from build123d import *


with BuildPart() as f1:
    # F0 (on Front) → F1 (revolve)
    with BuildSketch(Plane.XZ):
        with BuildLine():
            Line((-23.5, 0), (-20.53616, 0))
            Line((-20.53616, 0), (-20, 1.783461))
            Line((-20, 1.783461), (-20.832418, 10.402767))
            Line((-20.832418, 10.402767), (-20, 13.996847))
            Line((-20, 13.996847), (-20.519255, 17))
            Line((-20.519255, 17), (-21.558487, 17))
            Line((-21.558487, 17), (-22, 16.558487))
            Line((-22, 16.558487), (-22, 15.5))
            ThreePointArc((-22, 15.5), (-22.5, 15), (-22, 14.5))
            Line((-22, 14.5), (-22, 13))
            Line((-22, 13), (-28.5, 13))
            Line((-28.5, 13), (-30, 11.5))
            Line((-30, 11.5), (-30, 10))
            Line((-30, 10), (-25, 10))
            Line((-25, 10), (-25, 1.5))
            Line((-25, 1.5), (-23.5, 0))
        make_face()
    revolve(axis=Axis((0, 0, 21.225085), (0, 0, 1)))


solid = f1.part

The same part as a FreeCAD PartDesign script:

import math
import FreeCAD as App
import Part
import Sketcher
from FreeCAD import Vector
Q = App.Units.Quantity

doc = App.newDocument("Part")
params = doc.addObject("Spreadsheet::Sheet", "Params")
for row, (alias, value) in enumerate([
    ("sketch1_radius", "0.5 mm"),
    ("sketch1_width", "5 mm"),
    ("sketch1_width2", "6.5 mm"),
    ("sketch1_height", "1.5 mm"),
    ("sketch1_height2", "8.5 mm"),
    ("revolution_angle", "360 deg"),
], start=1):
    params.set(f"A{row}", alias)
    params.set(f"B{row}", "=" + value)
    params.setAlias(f"B{row}", alias)

body = doc.addObject("PartDesign::Body", "Body")

# Sketch on XZ plane
sketch1 = body.newObject("Sketcher::SketchObject", "Sketch")
sketch1.AttachmentSupport = (doc.getObject("XZ_Plane"), [""])
sketch1.MapMode = "FlatFace"
sketch1.addGeometry(Part.LineSegment(Vector(-23.5, 0, 0), Vector(-20.5, 0, 0)), False)
sketch1.addGeometry(Part.LineSegment(Vector(-20.5, 0, 0), Vector(-20, 1.8, 0)), False)
sketch1.addGeometry(Part.LineSegment(Vector(-20, 1.8, 0), Vector(-20.8, 10.4, 0)), False)
sketch1.addGeometry(Part.LineSegment(Vector(-20.8, 10.4, 0), Vector(-20, 14, 0)), False)
sketch1.addGeometry(Part.LineSegment(Vector(-20, 14, 0), Vector(-20.5, 17, 0)), False)
sketch1.addGeometry(Part.LineSegment(Vector(-20.5, 17, 0), Vector(-21.6, 17, 0)), False)
sketch1.addGeometry(Part.LineSegment(Vector(-21.6, 17, 0), Vector(-22, 16.6, 0)), False)
sketch1.addGeometry(Part.LineSegment(Vector(-22, 16.6, 0), Vector(-22, 15.5, 0)), False)
sketch1.addGeometry(Part.ArcOfCircle(Part.Circle(Vector(-22, 15, 0), Vector(0, 0, 1), 0.5), math.radians(90), math.radians(270)), False)
sketch1.addGeometry(Part.LineSegment(Vector(-22, 14.5, 0), Vector(-22, 13, 0)), False)
sketch1.addGeometry(Part.LineSegment(Vector(-22, 13, 0), Vector(-28.5, 13, 0)), False)
sketch1.addGeometry(Part.LineSegment(Vector(-28.5, 13, 0), Vector(-30, 11.5, 0)), False)
sketch1.addGeometry(Part.LineSegment(Vector(-30, 11.5, 0), Vector(-30, 10, 0)), False)
sketch1.addGeometry(Part.LineSegment(Vector(-30, 10, 0), Vector(-25, 10, 0)), False)
sketch1.addGeometry(Part.LineSegment(Vector(-25, 10, 0), Vector(-25, 1.5, 0)), False)
sketch1.addGeometry(Part.LineSegment(Vector(-25, 1.5, 0), Vector(-23.5, 0, 0)), False)
sketch1.addConstraint(Sketcher.Constraint("Coincident", 0, 2, 1, 1))
sketch1.addConstraint(Sketcher.Constraint("Coincident", 1, 2, 2, 1))
sketch1.addConstraint(Sketcher.Constraint("Coincident", 2, 2, 3, 1))
sketch1.addConstraint(Sketcher.Constraint("Coincident", 3, 2, 4, 1))
sketch1.addConstraint(Sketcher.Constraint("Coincident", 4, 2, 5, 1))
sketch1.addConstraint(Sketcher.Constraint("Coincident", 5, 2, 6, 1))
sketch1.addConstraint(Sketcher.Constraint("Coincident", 6, 2, 7, 1))
sketch1.addConstraint(Sketcher.Constraint("Coincident", 7, 2, 8, 1))
sketch1.addConstraint(Sketcher.Constraint("Coincident", 8, 2, 9, 1))
sketch1.addConstraint(Sketcher.Constraint("Coincident", 9, 2, 10, 1))
sketch1.addConstraint(Sketcher.Constraint("Coincident", 10, 2, 11, 1))
sketch1.addConstraint(Sketcher.Constraint("Coincident", 11, 2, 12, 1))
sketch1.addConstraint(Sketcher.Constraint("Coincident", 12, 2, 13, 1))
sketch1.addConstraint(Sketcher.Constraint("Coincident", 13, 2, 14, 1))
sketch1.addConstraint(Sketcher.Constraint("Coincident", 14, 2, 15, 1))
sketch1.addConstraint(Sketcher.Constraint("Coincident", 15, 2, 0, 1))
sketch1.addConstraint(Sketcher.Constraint("Horizontal", 0))
sketch1.addConstraint(Sketcher.Constraint("Horizontal", 5))
sketch1.addConstraint(Sketcher.Constraint("Vertical", 7))
sketch1.addConstraint(Sketcher.Constraint("Vertical", 9))
sketch1.addConstraint(Sketcher.Constraint("Horizontal", 10))
sketch1.addConstraint(Sketcher.Constraint("Vertical", 12))
sketch1.addConstraint(Sketcher.Constraint("Horizontal", 13))
sketch1.addConstraint(Sketcher.Constraint("Vertical", 14))
sketch1.addConstraint(Sketcher.Constraint("PointOnObject", 0, 2, -1))
sketch1.addConstraint(Sketcher.Constraint("Parallel", 6, 11))
sketch1.addConstraint(Sketcher.Constraint("Perpendicular", 11, 15))
sketch1.addConstraint(Sketcher.Constraint("Vertical", 1, 2, 3, 2))
sketch1.addConstraint(Sketcher.Constraint("Vertical", 8, 3, 6, 2))
sketch1.addConstraint(Sketcher.Constraint("Vertical", 7, 2, 8, 2))
sketch1.addConstraint(Sketcher.Constraint("Equal", 9, 12))
sketch1.addConstraint(Sketcher.Constraint("Equal", 11, 15))
sketch1.addConstraint(Sketcher.Constraint("Radius", 8, 0.5))
sketch1.addConstraint(Sketcher.Constraint("DistanceX", 13, 1, 13, 2, 5.0))
sketch1.addConstraint(Sketcher.Constraint("Angle", 6, Q("-135 deg")))
sketch1.addConstraint(Sketcher.Constraint("DistanceX", 10, 2, 10, 1, 6.5))
sketch1.addConstraint(Sketcher.Constraint("DistanceY", 9, 2, 9, 1, 1.5))
sketch1.addConstraint(Sketcher.Constraint("DistanceY", 14, 2, 14, 1, 8.5))
sketch1.addConstraint(Sketcher.Constraint("DistanceX", 8, 3, -1, 1, 22.0))
sketch1.addConstraint(Sketcher.Constraint("DistanceY", -1, 1, 8, 3, 15.0))
sketch1.addConstraint(Sketcher.Constraint("DistanceX", 1, 2, -1, 1, 20.0))
sketch1.addConstraint(Sketcher.Constraint("DistanceY", -1, 1, 4, 2, 17.0))
sketch1.addConstraint(Sketcher.Constraint("DistanceX", 0, 1, 0, 2, 2.96384))
sketch1.addConstraint(Sketcher.Constraint("DistanceX", 5, 2, 5, 1, 1.039232))
sketch1.addConstraint(Sketcher.Constraint("Distance", 1, 1.862311))
sketch1.addConstraint(Sketcher.Constraint("Distance", 2, 8.659409))
sketch1.addConstraint(Sketcher.Constraint("Distance", 3, 3.689218))
sketch1.addConstraint(Sketcher.Constraint("DistanceY", 7, 2, 7, 1, 1.058487))
sketch1.addConstraint(Sketcher.Constraint("DistanceX", 2, 2, -1, 1, 20.832418))
sketch1.setExpression("Constraints[32]", "Params.sketch1_radius")
sketch1.setExpression("Constraints[33]", "Params.sketch1_width")
sketch1.setExpression("Constraints[35]", "Params.sketch1_width2")
sketch1.setExpression("Constraints[36]", "Params.sketch1_height")
sketch1.setExpression("Constraints[37]", "Params.sketch1_height2")
revolution = body.newObject("PartDesign::Revolution", "Revolution")
revolution.Profile = sketch1
revolution.ReferenceAxis = (sketch1, ["V_Axis"])
revolution.setExpression("Angle", "Params.revolution_angle")

doc.recompute()
